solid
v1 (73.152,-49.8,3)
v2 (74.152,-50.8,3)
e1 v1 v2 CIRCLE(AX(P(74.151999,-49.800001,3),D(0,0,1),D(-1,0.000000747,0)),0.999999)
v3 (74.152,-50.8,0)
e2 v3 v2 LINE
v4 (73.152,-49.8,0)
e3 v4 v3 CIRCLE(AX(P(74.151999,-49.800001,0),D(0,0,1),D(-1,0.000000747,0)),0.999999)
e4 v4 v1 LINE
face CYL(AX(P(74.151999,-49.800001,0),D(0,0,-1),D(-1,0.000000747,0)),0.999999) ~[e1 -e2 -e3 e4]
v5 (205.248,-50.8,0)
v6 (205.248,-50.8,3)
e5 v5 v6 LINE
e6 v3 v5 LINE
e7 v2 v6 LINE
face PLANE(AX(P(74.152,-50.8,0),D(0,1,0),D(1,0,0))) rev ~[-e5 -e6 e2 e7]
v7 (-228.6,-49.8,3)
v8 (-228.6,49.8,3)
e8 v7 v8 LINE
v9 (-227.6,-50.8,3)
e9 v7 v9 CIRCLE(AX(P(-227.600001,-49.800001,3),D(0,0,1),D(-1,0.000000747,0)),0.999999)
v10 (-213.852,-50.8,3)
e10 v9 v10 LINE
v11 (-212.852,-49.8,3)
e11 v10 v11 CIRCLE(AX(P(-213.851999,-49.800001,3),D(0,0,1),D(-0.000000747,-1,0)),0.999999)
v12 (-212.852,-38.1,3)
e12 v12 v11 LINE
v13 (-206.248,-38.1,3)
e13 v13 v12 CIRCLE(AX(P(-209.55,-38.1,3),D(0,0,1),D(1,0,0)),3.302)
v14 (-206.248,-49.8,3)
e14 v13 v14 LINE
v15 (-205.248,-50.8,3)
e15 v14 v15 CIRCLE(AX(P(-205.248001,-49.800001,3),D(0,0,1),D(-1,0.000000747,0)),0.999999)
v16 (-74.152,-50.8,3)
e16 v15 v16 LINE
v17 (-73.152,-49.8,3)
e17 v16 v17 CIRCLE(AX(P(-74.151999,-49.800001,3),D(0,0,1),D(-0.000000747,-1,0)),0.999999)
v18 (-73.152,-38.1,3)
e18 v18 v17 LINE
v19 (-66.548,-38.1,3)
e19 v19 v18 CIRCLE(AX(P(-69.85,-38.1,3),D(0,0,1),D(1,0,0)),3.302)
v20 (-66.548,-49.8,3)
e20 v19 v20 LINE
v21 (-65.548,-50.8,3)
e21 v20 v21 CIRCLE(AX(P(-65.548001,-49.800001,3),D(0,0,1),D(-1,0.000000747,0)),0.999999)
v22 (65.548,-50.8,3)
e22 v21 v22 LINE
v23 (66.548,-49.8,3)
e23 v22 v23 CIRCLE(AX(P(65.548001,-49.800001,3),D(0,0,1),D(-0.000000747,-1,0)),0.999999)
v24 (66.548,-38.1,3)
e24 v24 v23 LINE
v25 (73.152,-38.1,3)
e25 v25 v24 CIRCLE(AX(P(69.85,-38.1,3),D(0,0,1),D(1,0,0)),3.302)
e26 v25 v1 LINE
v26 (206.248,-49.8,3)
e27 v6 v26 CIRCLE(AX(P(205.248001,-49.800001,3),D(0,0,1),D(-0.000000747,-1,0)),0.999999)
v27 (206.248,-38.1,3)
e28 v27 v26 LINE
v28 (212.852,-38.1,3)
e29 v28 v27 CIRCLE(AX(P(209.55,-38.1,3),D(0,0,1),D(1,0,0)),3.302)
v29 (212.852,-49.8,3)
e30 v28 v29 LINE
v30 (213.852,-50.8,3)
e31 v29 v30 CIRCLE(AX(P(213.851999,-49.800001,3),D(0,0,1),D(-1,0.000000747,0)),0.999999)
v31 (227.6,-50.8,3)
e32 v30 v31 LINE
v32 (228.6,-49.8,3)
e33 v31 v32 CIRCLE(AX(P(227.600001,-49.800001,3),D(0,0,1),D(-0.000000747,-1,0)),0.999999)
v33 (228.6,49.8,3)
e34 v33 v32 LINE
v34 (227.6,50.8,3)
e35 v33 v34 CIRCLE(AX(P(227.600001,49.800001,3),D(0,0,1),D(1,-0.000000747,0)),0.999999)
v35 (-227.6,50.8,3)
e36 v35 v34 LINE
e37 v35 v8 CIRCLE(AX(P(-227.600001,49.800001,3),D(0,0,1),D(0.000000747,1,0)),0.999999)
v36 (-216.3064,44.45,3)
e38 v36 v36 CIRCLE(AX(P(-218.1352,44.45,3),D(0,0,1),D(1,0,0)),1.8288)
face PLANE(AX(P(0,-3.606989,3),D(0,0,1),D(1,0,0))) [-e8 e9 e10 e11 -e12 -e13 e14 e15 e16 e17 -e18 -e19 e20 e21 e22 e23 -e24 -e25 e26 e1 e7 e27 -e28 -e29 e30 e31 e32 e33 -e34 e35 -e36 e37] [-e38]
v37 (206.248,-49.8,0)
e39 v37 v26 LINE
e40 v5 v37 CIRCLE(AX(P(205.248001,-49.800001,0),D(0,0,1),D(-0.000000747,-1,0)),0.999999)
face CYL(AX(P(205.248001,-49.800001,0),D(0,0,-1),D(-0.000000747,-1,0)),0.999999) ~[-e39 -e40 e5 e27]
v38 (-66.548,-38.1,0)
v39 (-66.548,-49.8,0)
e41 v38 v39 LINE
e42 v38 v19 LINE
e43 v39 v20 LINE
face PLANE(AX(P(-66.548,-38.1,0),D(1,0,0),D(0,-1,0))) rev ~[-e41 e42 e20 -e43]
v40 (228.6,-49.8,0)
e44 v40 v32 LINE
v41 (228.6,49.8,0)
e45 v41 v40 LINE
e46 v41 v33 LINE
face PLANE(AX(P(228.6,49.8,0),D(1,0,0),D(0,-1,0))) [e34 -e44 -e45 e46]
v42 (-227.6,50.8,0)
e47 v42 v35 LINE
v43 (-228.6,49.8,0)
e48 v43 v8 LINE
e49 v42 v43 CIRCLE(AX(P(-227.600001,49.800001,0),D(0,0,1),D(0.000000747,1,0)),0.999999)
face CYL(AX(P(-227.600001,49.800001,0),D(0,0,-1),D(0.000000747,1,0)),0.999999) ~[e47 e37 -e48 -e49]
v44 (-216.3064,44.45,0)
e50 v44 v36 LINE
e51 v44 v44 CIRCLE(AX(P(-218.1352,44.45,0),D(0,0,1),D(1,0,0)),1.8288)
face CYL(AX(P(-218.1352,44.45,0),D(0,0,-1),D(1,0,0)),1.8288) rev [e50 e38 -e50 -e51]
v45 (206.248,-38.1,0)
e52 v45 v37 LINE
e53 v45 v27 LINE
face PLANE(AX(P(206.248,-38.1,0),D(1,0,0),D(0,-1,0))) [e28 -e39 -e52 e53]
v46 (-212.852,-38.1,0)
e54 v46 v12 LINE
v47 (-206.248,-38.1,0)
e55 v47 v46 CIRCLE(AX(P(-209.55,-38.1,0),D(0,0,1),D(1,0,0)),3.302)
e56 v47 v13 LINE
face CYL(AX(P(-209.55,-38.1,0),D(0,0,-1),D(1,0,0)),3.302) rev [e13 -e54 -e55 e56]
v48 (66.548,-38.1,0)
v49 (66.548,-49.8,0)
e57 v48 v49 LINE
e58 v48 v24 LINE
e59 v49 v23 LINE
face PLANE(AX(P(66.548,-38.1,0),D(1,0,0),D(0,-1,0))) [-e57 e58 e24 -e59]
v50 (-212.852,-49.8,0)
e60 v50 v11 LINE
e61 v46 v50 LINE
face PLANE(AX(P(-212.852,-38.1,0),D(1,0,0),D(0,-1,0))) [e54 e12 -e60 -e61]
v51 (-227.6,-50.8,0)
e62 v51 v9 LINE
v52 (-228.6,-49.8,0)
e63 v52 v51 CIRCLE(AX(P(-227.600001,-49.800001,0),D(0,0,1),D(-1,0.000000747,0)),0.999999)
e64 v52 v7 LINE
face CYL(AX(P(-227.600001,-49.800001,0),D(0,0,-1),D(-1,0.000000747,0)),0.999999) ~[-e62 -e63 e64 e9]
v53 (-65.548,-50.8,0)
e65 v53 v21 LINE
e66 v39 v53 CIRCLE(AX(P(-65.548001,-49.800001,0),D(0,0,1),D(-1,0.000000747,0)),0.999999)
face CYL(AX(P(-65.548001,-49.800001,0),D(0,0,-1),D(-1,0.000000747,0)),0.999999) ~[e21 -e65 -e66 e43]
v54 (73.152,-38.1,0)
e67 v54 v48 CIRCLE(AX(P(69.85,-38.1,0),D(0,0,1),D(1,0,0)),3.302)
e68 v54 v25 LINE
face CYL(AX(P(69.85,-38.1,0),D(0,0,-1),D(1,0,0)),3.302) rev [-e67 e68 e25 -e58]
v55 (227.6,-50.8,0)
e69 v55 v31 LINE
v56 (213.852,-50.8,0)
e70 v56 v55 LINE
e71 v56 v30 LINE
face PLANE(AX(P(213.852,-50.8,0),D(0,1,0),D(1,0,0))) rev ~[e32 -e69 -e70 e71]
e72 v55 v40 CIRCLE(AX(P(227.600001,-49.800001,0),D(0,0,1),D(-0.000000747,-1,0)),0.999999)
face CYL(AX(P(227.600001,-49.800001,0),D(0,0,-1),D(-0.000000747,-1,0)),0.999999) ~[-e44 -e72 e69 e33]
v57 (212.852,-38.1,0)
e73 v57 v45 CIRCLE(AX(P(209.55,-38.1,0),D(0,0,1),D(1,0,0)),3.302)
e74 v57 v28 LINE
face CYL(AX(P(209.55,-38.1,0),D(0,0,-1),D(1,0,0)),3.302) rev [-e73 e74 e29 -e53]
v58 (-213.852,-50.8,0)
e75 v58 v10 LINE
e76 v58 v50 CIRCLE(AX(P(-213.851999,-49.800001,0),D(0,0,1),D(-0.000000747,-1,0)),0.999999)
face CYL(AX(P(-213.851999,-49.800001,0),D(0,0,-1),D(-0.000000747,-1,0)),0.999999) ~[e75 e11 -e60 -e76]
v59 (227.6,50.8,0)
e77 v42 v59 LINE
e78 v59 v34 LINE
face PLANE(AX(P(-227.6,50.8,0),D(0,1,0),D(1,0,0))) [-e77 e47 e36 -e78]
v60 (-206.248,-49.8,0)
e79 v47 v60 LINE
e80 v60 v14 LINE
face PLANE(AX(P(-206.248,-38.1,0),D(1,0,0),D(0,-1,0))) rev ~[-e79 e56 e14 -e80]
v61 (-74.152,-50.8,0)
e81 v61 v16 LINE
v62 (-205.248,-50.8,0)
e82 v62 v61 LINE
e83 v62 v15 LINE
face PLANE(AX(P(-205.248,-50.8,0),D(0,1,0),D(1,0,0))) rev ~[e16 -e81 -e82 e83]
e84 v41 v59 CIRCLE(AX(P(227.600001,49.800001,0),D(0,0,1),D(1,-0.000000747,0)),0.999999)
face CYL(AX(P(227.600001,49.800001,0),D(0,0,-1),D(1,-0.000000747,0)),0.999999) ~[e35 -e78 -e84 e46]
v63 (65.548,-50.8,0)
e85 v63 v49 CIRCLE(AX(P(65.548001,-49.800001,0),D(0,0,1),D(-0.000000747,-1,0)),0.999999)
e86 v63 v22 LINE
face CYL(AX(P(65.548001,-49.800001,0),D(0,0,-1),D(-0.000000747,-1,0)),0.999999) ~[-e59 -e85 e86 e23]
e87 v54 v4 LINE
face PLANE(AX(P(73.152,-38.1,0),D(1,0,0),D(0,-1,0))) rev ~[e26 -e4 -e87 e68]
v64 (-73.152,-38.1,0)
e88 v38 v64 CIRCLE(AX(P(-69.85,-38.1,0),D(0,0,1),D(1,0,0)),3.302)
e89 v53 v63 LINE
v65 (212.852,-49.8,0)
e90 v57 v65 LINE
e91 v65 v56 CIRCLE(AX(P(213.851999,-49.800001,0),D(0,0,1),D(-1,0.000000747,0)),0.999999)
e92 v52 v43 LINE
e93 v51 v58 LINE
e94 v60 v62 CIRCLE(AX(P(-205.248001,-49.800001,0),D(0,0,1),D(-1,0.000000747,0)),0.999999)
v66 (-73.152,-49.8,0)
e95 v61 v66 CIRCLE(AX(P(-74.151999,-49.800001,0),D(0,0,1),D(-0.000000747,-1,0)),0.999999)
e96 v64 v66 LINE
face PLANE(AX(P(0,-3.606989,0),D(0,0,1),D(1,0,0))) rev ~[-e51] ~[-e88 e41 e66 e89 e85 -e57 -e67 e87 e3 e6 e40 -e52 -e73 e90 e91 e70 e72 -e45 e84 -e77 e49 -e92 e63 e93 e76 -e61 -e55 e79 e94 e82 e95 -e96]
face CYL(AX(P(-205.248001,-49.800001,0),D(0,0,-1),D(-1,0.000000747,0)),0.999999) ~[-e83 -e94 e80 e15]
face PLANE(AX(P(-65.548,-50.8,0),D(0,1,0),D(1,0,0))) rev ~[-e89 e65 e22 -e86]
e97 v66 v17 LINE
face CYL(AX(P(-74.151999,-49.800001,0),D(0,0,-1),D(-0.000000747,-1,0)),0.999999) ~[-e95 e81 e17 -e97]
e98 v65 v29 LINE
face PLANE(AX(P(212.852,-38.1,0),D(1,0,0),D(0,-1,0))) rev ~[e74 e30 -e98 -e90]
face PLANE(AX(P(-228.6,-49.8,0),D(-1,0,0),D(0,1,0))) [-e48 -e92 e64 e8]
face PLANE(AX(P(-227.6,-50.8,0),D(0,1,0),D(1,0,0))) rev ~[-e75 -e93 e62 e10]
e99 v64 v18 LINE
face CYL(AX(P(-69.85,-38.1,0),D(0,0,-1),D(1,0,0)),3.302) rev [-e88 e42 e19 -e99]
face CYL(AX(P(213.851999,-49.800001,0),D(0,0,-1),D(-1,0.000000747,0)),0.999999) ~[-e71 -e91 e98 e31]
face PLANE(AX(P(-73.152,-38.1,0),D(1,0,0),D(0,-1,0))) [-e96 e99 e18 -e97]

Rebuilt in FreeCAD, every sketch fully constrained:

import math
import FreeCAD as App
import Part
import Sketcher
from FreeCAD import Vector
Q = App.Units.Quantity

doc = App.newDocument("Part")
body = doc.addObject("PartDesign::Body", "Body")

# Sketch on XY plane
sketch1 = doc.addObject("Sketcher::SketchObject", "Sketch")
body.addObject(sketch1)
sketch1.AttachmentSupport = (doc.XY_Plane, [""])
sketch1.MapMode = "FlatFace"
sketch1.addGeometry(Part.ArcOfCircle(Part.Circle(Vector(-227.6, 49.8, 0), Vector(0, 0, 1), 1), math.radians(90), math.radians(180)), False)
sketch1.addGeometry(Part.LineSegment(Vector(-228.6, 49.8, 0), Vector(-228.6, -49.8, 0)), False)
sketch1.addGeometry(Part.ArcOfCircle(Part.Circle(Vector(-227.6, -49.8, 0), Vector(0, 0, 1), 1), math.radians(180), math.radians(270)), False)
sketch1.addGeometry(Part.LineSegment(Vector(-227.6, -50.8, 0), Vector(-213.9, -50.8, 0)), False)
sketch1.addGeometry(Part.ArcOfCircle(Part.Circle(Vector(-213.9, -49.8, 0), Vector(0, 0, 1), 1), math.radians(-90), math.radians(0)), False)
sketch1.addGeometry(Part.LineSegment(Vector(-212.9, -49.8, 0), Vector(-212.9, -38.1, 0)), False)
sketch1.addGeometry(Part.ArcOfCircle(Part.Circle(Vector(-209.6, -38.1, 0), Vector(0, 0, 1), 3.3), math.radians(0), math.radians(180)), False)
sketch1.addGeometry(Part.LineSegment(Vector(-206.2, -38.1, 0), Vector(-206.2, -49.8, 0)), False)
sketch1.addGeometry(Part.ArcOfCircle(Part.Circle(Vector(-205.2, -49.8, 0), Vector(0, 0, 1), 1), math.radians(180), math.radians(270)), False)
sketch1.addGeometry(Part.LineSegment(Vector(-205.2, -50.8, 0), Vector(-74.2, -50.8, 0)), False)
sketch1.addGeometry(Part.ArcOfCircle(Part.Circle(Vector(-74.2, -49.8, 0), Vector(0, 0, 1), 1), math.radians(-90), math.radians(0)), False)
sketch1.addGeometry(Part.LineSegment(Vector(-73.2, -49.8, 0), Vector(-73.2, -38.1, 0)), False)
sketch1.addGeometry(Part.ArcOfCircle(Part.Circle(Vector(-69.8, -38.1, 0), Vector(0, 0, 1), 3.3), math.radians(0), math.radians(180)), False)
sketch1.addGeometry(Part.LineSegment(Vector(-66.5, -38.1, 0), Vector(-66.5, -49.8, 0)), False)
sketch1.addGeometry(Part.ArcOfCircle(Part.Circle(Vector(-65.5, -49.8, 0), Vector(0, 0, 1), 1), math.radians(180), math.radians(270)), False)
sketch1.addGeometry(Part.LineSegment(Vector(-65.5, -50.8, 0), Vector(65.5, -50.8, 0)), False)
sketch1.addGeometry(Part.ArcOfCircle(Part.Circle(Vector(65.5, -49.8, 0), Vector(0, 0, 1), 1), math.radians(-90), math.radians(0)), False)
sketch1.addGeometry(Part.LineSegment(Vector(66.5, -49.8, 0), Vector(66.5, -38.1, 0)), False)
sketch1.addGeometry(Part.ArcOfCircle(Part.Circle(Vector(69.8, -38.1, 0), Vector(0, 0, 1), 3.3), math.radians(0), math.radians(180)), False)
sketch1.addGeometry(Part.LineSegment(Vector(73.2, -38.1, 0), Vector(73.2, -49.8, 0)), False)
sketch1.addGeometry(Part.ArcOfCircle(Part.Circle(Vector(74.2, -49.8, 0), Vector(0, 0, 1), 1), math.radians(180), math.radians(270)), False)
sketch1.addGeometry(Part.LineSegment(Vector(74.2, -50.8, 0), Vector(205.2, -50.8, 0)), False)
sketch1.addGeometry(Part.ArcOfCircle(Part.Circle(Vector(205.2, -49.8, 0), Vector(0, 0, 1), 1), math.radians(-90), math.radians(0)), False)
sketch1.addGeometry(Part.LineSegment(Vector(206.2, -49.8, 0), Vector(206.2, -38.1, 0)), False)
sketch1.addGeometry(Part.ArcOfCircle(Part.Circle(Vector(209.6, -38.1, 0), Vector(0, 0, 1), 3.3), math.radians(0), math.radians(180)), False)
sketch1.addGeometry(Part.LineSegment(Vector(212.9, -38.1, 0), Vector(212.9, -49.8, 0)), False)
sketch1.addGeometry(Part.ArcOfCircle(Part.Circle(Vector(213.9, -49.8, 0), Vector(0, 0, 1), 1), math.radians(180), math.radians(270)), False)
sketch1.addGeometry(Part.LineSegment(Vector(213.9, -50.8, 0), Vector(227.6, -50.8, 0)), False)
sketch1.addGeometry(Part.ArcOfCircle(Part.Circle(Vector(227.6, -49.8, 0), Vector(0, 0, 1), 1), math.radians(-90), math.radians(0)), False)
sketch1.addGeometry(Part.LineSegment(Vector(228.6, -49.8, 0), Vector(228.6, 49.8, 0)), False)
sketch1.addGeometry(Part.ArcOfCircle(Part.Circle(Vector(227.6, 49.8, 0), Vector(0, 0, 1), 1), math.radians(0), math.radians(90)), False)
sketch1.addGeometry(Part.LineSegment(Vector(227.6, 50.8, 0), Vector(-227.6, 50.8, 0)), False)
sketch1.addGeometry(Part.Circle(Vector(-218.1, 44.5, 0), Vector(0, 0, 1), 1.8), False)
sketch1.addConstraint(Sketcher.Constraint("Tangent", 0, 2, 1, 1))
sketch1.addConstraint(Sketcher.Constraint("Tangent", 1, 2, 2, 1))
sketch1.addConstraint(Sketcher.Constraint("Tangent", 2, 2, 3, 1))
sketch1.addConstraint(Sketcher.Constraint("Tangent", 3, 2, 4, 1))
sketch1.addConstraint(Sketcher.Constraint("Tangent", 4, 2, 5, 1))
sketch1.addConstraint(Sketcher.Constraint("Tangent", 5, 2, 6, 2))
sketch1.addConstraint(Sketcher.Constraint("Tangent", 6, 1, 7, 1))
sketch1.addConstraint(Sketcher.Constraint("Tangent", 7, 2, 8, 1))
sketch1.addConstraint(Sketcher.Constraint("Tangent", 8, 2, 9, 1))
sketch1.addConstraint(Sketcher.Constraint("Tangent", 9, 2, 10, 1))
sketch1.addConstraint(Sketcher.Constraint("Tangent", 10, 2, 11, 1))
sketch1.addConstraint(Sketcher.Constraint("Tangent", 11, 2, 12, 2))
sketch1.addConstraint(Sketcher.Constraint("Tangent", 12, 1, 13, 1))
sketch1.addConstraint(Sketcher.Constraint("Tangent", 13, 2, 14, 1))
sketch1.addConstraint(Sketcher.Constraint("Tangent", 14, 2, 15, 1))
sketch1.addConstraint(Sketcher.Constraint("Tangent", 15, 2, 16, 1))
sketch1.addConstraint(Sketcher.Constraint("Tangent", 16, 2, 17, 1))
sketch1.addConstraint(Sketcher.Constraint("Tangent", 17, 2, 18, 2))
sketch1.addConstraint(Sketcher.Constraint("Tangent", 18, 1, 19, 1))
sketch1.addConstraint(Sketcher.Constraint("Tangent", 19, 2, 20, 1))
sketch1.addConstraint(Sketcher.Constraint("Tangent", 20, 2, 21, 1))
sketch1.addConstraint(Sketcher.Constraint("Tangent", 21, 2, 22, 1))
sketch1.addConstraint(Sketcher.Constraint("Tangent", 22, 2, 23, 1))
sketch1.addConstraint(Sketcher.Constraint("Tangent", 23, 2, 24, 2))
sketch1.addConstraint(Sketcher.Constraint("Tangent", 24, 1, 25, 1))
sketch1.addConstraint(Sketcher.Constraint("Tangent", 25, 2, 26, 1))
sketch1.addConstraint(Sketcher.Constraint("Tangent", 26, 2, 27, 1))
sketch1.addConstraint(Sketcher.Constraint("Tangent", 27, 2, 28, 1))
sketch1.addConstraint(Sketcher.Constraint("Tangent", 28, 2, 29, 1))
sketch1.addConstraint(Sketcher.Constraint("Tangent", 29, 2, 30, 1))
sketch1.addConstraint(Sketcher.Constraint("Tangent", 30, 2, 31, 1))
sketch1.addConstraint(Sketcher.Constraint("Tangent", 31, 2, 0, 1))
sketch1.addConstraint(Sketcher.Constraint("Vertical", 1))
sketch1.addConstraint(Sketcher.Constraint("Horizontal", 3))
sketch1.addConstraint(Sketcher.Constraint("Vertical", 5))
sketch1.addConstraint(Sketcher.Constraint("Vertical", 7))
sketch1.addConstraint(Sketcher.Constraint("Horizontal", 9))
sketch1.addConstraint(Sketcher.Constraint("Vertical", 11))
sketch1.addConstraint(Sketcher.Constraint("Vertical", 13))
sketch1.addConstraint(Sketcher.Constraint("Horizontal", 15))
sketch1.addConstraint(Sketcher.Constraint("Vertical", 17))
sketch1.addConstraint(Sketcher.Constraint("Vertical", 19))
sketch1.addConstraint(Sketcher.Constraint("Horizontal", 21))
sketch1.addConstraint(Sketcher.Constraint("Vertical", 23))
sketch1.addConstraint(Sketcher.Constraint("Vertical", 25))
sketch1.addConstraint(Sketcher.Constraint("Horizontal", 27))
sketch1.addConstraint(Sketcher.Constraint("Vertical", 29))
sketch1.addConstraint(Sketcher.Constraint("Horizontal", 31))
sketch1.addConstraint(Sketcher.Constraint("Equal", 0, 2))
sketch1.addConstraint(Sketcher.Constraint("Equal", 2, 4))
sketch1.addConstraint(Sketcher.Constraint("Equal", 4, 8))
sketch1.addConstraint(Sketcher.Constraint("Equal", 8, 10))
sketch1.addConstraint(Sketcher.Constraint("Equal", 6, 12))
sketch1.addConstraint(Sketcher.Constraint("Equal", 10, 14))
sketch1.addConstraint(Sketcher.Constraint("Equal", 14, 16))
sketch1.addConstraint(Sketcher.Constraint("Equal", 12, 18))
sketch1.addConstraint(Sketcher.Constraint("Equal", 16, 20))
sketch1.addConstraint(Sketcher.Constraint("Equal", 20, 22))
sketch1.addConstraint(Sketcher.Constraint("Equal", 18, 24))
sketch1.addConstraint(Sketcher.Constraint("Equal", 22, 26))
sketch1.addConstraint(Sketcher.Constraint("Equal", 26, 28))
sketch1.addConstraint(Sketcher.Constraint("Equal", 28, 30))
sketch1.addConstraint(Sketcher.Constraint("Symmetric", 0, 3, 28, 3, -1, 1))
sketch1.addConstraint(Sketcher.Constraint("Symmetric", 12, 3, 18, 3, -2))
sketch1.addConstraint(Sketcher.Constraint("Symmetric", 8, 3, 22, 3, -2))
sketch1.addConstraint(Sketcher.Constraint("Horizontal", 4, 3, 8, 3))
sketch1.addConstraint(Sketcher.Constraint("Horizontal", 6, 3, 12, 3))
sketch1.addConstraint(Sketcher.Constraint("Horizontal", 10, 3, 14, 3))
sketch1.addConstraint(Sketcher.Constraint("Horizontal", 18, 3, 24, 3))
sketch1.addConstraint(Sketcher.Constraint("Horizontal", 22, 3, 26, 3))
sketch1.addConstraint(Sketcher.Constraint("Equal", 9, 15))
sketch1.addConstraint(Sketcher.Constraint("Radius", 0, Q("0.999999 mm")))
sketch1.addConstraint(Sketcher.Constraint("DistanceX", 31, 2, 31, 1, Q("455.2 mm")))
sketch1.addConstraint(Sketcher.Constraint("DistanceY", 1, 2, 1, 1, Q("99.6 mm")))
sketch1.addConstraint(Sketcher.Constraint("DistanceY", 5, 1, 5, 2, Q("11.7 mm")))
sketch1.addConstraint(Sketcher.Constraint("Radius", 6, Q("3.302 mm")))
sketch1.addConstraint(Sketcher.Constraint("Diameter", 32, Q("3.6576 mm")))
sketch1.addConstraint(Sketcher.Constraint("DistanceX", 4, 3, 10, 3, Q("139.7 mm")))
sketch1.addConstraint(Sketcher.Constraint("DistanceY", -1, 1, 32, 3, Q("44.45 mm")))
sketch1.addConstraint(Sketcher.Constraint("DistanceX", 32, 3, -1, 1, Q("218.1352 mm")))
pad1 = doc.addObject("PartDesign::Pad", "Pad")
body.addObject(pad1)
pad1.Profile = sketch1
pad1.Length = 3

doc.recompute()
